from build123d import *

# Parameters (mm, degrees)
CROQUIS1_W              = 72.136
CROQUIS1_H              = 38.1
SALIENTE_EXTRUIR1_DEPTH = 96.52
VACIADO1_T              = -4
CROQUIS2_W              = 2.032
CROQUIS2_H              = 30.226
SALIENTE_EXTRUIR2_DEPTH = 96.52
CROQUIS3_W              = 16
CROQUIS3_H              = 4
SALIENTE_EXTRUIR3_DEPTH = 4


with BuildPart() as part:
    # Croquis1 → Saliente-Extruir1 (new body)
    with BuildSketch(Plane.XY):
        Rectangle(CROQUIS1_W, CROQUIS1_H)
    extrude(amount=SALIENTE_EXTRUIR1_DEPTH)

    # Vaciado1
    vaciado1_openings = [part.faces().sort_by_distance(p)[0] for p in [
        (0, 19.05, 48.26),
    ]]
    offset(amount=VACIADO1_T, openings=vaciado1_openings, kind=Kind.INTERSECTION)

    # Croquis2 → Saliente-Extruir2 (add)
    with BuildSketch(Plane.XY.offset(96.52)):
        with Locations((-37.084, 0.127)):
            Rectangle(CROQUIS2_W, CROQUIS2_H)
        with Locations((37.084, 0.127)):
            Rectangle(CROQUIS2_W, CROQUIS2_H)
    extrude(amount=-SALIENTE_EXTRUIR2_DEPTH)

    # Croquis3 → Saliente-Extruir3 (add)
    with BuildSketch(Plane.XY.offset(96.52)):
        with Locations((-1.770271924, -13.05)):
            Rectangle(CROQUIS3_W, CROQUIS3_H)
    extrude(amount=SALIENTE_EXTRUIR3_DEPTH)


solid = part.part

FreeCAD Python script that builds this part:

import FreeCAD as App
import Part
import Sketcher
from FreeCAD import Vector
Q = App.Units.Quantity


def faces_at(feature, points):
    """Names of the faces that lie closest to the given points."""
    faces = feature.Shape.Faces
    near = lambda p: min(range(len(faces)), key=lambda i: faces[i].distToShape(Part.Vertex(*p))[0])
    return sorted({f"Face{near(p) + 1}" for p in points})

doc = App.newDocument("Part")
body = doc.addObject("PartDesign::Body", "Body")

sketch1 = doc.addObject("Sketcher::SketchObject", "Sketch")
body.addObject(sketch1)
sketch1.AttachmentSupport = (doc.XY_Plane, [""])
sketch1.MapMode = "FlatFace"
sketch1.addGeometry(Part.LineSegment(Vector(-36, 19, 0), Vector(-36, -19, 0)), False)
sketch1.addGeometry(Part.LineSegment(Vector(-36, -19, 0), Vector(36, -19, 0)), False)
sketch1.addGeometry(Part.LineSegment(Vector(36, -19, 0), Vector(36, 19, 0)), False)
sketch1.addGeometry(Part.LineSegment(Vector(36, 19, 0), Vector(-36, 19, 0)), False)
sketch1.addConstraint(Sketcher.Constraint("Coincident", 0, 2, 1, 1))
sketch1.addConstraint(Sketcher.Constraint("Coincident", 1, 2, 2, 1))
sketch1.addConstraint(Sketcher.Constraint("Coincident", 2, 2, 3, 1))
sketch1.addConstraint(Sketcher.Constraint("Coincident", 3, 2, 0, 1))
sketch1.addConstraint(Sketcher.Constraint("Vertical", 0))
sketch1.addConstraint(Sketcher.Constraint("Horizontal", 1))
sketch1.addConstraint(Sketcher.Constraint("Vertical", 2))
sketch1.addConstraint(Sketcher.Constraint("Horizontal", 3))
sketch1.addConstraint(Sketcher.Constraint("Symmetric", 0, 2, 2, 2, -1, 1))
sketch1.addConstraint(Sketcher.Constraint("DistanceY", 0, 2, 0, 1, Q("1.5 in")))
sketch1.addConstraint(Sketcher.Constraint("DistanceX", 1, 1, 1, 2, Q("2.84 in")))
pad1 = doc.addObject("PartDesign::Pad", "Pad")
body.addObject(pad1)
pad1.Profile = sketch1
pad1.Length = Q("3.8 in")
doc.recompute()

thickness = doc.addObject("PartDesign::Thickness", "Thickness")
body.addObject(thickness)
thickness.Base = (pad1, faces_at(pad1, [(0, 19.05, 48.26)]))
thickness.Value = 4
thickness.Reversed = True
thickness.Join = "Intersection"

sketch2 = doc.addObject("Sketcher::SketchObject", "Sketch001")
body.addObject(sketch2)
sketch2.AttachmentSupport = (doc.XY_Plane, [""])
sketch2.MapMode = "FlatFace"
sketch2.AttachmentOffset = App.Placement(Vector(0, 0, 3.8 * 25.4), App.Rotation())
sketch2.addGeometry(Part.LineSegment(Vector(-38.1, 15.2, 0), Vector(-38.1, -15, 0)), False)
sketch2.addGeometry(Part.LineSegment(Vector(-38.1, -15, 0), Vector(-36.1, -15, 0)), False)
sketch2.addGeometry(Part.LineSegment(Vector(-36.1, -15, 0), Vector(-36.1, 15.2, 0)), False)
sketch2.addGeometry(Part.LineSegment(Vector(-36.1, 15.2, 0), Vector(-38.1, 15.2, 0)), False)
sketch2.addGeometry(Part.LineSegment(Vector(36.1, 15.2, 0), Vector(36.1, -15, 0)), False)
sketch2.addGeometry(Part.LineSegment(Vector(36.1, -15, 0), Vector(38.1, -15, 0)), False)
sketch2.addGeometry(Part.LineSegment(Vector(38.1, -15, 0), Vector(38.1, 15.2, 0)), False)
sketch2.addGeometry(Part.LineSegment(Vector(38.1, 15.2, 0), Vector(36.1, 15.2, 0)), False)
sketch2.addConstraint(Sketcher.Constraint("Coincident", 0, 2, 1, 1))
sketch2.addConstraint(Sketcher.Constraint("Coincident", 1, 2, 2, 1))
sketch2.addConstraint(Sketcher.Constraint("Coincident", 2, 2, 3, 1))
sketch2.addConstraint(Sketcher.Constraint("Coincident", 3, 2, 0, 1))
sketch2.addConstraint(Sketcher.Constraint("Coincident", 4, 2, 5, 1))
sketch2.addConstraint(Sketcher.Constraint("Coincident", 5, 2, 6, 1))
sketch2.addConstraint(Sketcher.Constraint("Coincident", 6, 2, 7, 1))
sketch2.addConstraint(Sketcher.Constraint("Coincident", 7, 2, 4, 1))
sketch2.addConstraint(Sketcher.Constraint("Vertical", 0))
sketch2.addConstraint(Sketcher.Constraint("Horizontal", 1))
sketch2.addConstraint(Sketcher.Constraint("Vertical", 2))
sketch2.addConstraint(Sketcher.Constraint("Horizontal", 3))
sketch2.addConstraint(Sketcher.Constraint("Vertical", 4))
sketch2.addConstraint(Sketcher.Constraint("Horizontal", 5))
sketch2.addConstraint(Sketcher.Constraint("Vertical", 6))
sketch2.addConstraint(Sketcher.Constraint("Horizontal", 7))
sketch2.addConstraint(Sketcher.Constraint("Symmetric", 1, 2, 4, 2, -2))
sketch2.addConstraint(Sketcher.Constraint("Symmetric", 3, 2, 6, 2, -2))
sketch2.addConstraint(Sketcher.Constraint("DistanceX", 0, 2, 5, 2, Q("3 in")))
sketch2.addConstraint(Sketcher.Constraint("DistanceX", 1, 1, 1, 2, Q("0.08 in")))
sketch2.addConstraint(Sketcher.Constraint("DistanceY", 0, 2, 0, 1, Q("1.19 in")))
sketch2.addConstraint(Sketcher.Constraint("DistanceY", -1, 1, 2, 2, Q("0.6 in")))
pad2 = doc.addObject("PartDesign::Pad", "Pad001")
body.addObject(pad2)
pad2.Profile = sketch2
pad2.Length = Q("3.8 in")
pad2.Reversed = True

sketch3 = doc.addObject("Sketcher::SketchObject", "Sketch002")
body.addObject(sketch3)
sketch3.AttachmentSupport = (doc.XY_Plane, [""])
sketch3.MapMode = "FlatFace"
sketch3.AttachmentOffset = App.Placement(Vector(0, 0, 3.8 * 25.4), App.Rotation())
sketch3.addGeometry(Part.LineSegment(Vector(-9.8, -11.1, 0), Vector(-9.8, -15.1, 0)), False)
sketch3.addGeometry(Part.LineSegment(Vector(-9.8, -15.1, 0), Vector(6.2, -15.1, 0)), False)
sketch3.addGeometry(Part.LineSegment(Vector(6.2, -15.1, 0), Vector(6.2, -11.1, 0)), False)
sketch3.addGeometry(Part.LineSegment(Vector(6.2, -11.1, 0), Vector(-9.8, -11.1, 0)), False)
sketch3.addConstraint(Sketcher.Constraint("Coincident", 0, 2, 1, 1))
sketch3.addConstraint(Sketcher.Constraint("Coincident", 1, 2, 2, 1))
sketch3.addConstraint(Sketcher.Constraint("Coincident", 2, 2, 3, 1))
sketch3.addConstraint(Sketcher.Constraint("Coincident", 3, 2, 0, 1))
sketch3.addConstraint(Sketcher.Constraint("Vertical", 0))
sketch3.addConstraint(Sketcher.Constraint("Horizontal", 1))
sketch3.addConstraint(Sketcher.Constraint("Vertical", 2))
sketch3.addConstraint(Sketcher.Constraint("Horizontal", 3))
sketch3.addConstraint(Sketcher.Constraint("DistanceX", 1, 1, 1, 2, 16.0))
sketch3.addConstraint(Sketcher.Constraint("DistanceY", 0, 2, 0, 1, 4.0))
sketch3.addConstraint(Sketcher.Constraint("DistanceY", 0, 2, -1, 1, 15.05))
sketch3.addConstraint(Sketcher.Constraint("DistanceX", 0, 2, -1, 1, 9.770272))
pad3 = doc.addObject("PartDesign::Pad", "Pad002")
body.addObject(pad3)
pad3.Profile = sketch3
pad3.Length = 4

doc.recompute()
